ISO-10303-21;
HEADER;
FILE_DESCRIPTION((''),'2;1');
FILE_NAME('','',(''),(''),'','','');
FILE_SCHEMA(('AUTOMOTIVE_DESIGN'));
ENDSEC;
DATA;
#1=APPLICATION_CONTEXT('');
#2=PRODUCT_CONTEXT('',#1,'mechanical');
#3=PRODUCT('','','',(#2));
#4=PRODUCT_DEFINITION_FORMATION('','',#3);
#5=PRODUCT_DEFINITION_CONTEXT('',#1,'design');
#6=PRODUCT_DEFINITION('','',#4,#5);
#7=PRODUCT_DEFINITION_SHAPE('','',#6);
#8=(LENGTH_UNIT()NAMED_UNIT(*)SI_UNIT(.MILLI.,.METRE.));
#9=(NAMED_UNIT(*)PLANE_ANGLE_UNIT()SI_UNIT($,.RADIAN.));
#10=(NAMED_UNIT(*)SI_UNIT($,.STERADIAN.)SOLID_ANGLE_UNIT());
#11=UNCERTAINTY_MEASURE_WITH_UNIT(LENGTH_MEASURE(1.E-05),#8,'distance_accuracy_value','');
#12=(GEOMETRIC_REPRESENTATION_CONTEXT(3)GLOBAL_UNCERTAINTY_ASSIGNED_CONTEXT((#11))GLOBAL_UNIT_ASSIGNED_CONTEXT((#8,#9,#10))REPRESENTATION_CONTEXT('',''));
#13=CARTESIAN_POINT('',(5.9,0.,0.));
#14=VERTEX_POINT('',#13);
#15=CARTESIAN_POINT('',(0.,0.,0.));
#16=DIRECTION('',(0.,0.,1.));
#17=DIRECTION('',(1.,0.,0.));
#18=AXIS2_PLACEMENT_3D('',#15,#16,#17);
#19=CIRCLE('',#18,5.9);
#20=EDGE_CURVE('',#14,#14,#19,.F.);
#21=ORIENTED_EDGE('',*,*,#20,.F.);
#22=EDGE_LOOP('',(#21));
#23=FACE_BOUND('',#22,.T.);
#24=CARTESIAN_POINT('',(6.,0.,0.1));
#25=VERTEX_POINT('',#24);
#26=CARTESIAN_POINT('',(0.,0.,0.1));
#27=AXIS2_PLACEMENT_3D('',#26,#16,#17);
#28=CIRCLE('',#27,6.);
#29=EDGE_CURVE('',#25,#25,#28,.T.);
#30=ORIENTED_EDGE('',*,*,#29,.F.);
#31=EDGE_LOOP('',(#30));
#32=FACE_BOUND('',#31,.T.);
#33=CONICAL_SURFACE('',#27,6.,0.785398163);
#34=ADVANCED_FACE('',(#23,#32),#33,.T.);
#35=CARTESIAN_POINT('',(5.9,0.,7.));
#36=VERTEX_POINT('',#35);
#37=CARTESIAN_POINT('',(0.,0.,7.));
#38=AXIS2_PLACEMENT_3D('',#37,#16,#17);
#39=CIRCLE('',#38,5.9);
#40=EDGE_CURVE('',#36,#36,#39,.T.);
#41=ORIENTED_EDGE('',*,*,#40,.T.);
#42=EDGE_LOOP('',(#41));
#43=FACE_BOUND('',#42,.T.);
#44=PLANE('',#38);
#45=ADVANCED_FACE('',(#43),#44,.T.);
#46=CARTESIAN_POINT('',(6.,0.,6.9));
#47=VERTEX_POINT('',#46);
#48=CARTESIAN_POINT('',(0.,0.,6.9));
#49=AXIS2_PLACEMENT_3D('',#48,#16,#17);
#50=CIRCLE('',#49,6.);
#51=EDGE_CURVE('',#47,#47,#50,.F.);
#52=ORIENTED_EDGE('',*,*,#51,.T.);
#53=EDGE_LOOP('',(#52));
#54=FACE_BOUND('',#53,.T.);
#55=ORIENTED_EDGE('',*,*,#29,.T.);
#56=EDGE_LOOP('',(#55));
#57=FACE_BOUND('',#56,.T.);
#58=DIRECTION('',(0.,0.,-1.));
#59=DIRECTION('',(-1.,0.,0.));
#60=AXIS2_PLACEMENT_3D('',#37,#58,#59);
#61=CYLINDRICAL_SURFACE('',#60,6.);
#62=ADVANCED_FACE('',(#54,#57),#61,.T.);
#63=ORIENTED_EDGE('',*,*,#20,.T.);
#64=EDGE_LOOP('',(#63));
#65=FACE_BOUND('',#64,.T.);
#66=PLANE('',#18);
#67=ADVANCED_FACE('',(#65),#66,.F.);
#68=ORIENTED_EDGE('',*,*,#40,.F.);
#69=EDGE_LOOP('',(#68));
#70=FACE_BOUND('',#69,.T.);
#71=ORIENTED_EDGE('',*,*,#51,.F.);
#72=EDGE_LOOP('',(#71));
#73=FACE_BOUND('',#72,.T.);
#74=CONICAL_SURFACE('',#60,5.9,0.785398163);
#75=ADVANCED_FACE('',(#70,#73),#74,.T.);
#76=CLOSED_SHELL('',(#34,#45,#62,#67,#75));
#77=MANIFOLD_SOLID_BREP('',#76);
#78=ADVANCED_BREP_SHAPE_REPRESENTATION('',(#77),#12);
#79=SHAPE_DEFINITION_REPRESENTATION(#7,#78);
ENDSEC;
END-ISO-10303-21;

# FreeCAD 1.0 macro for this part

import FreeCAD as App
import Part
import Sketcher

V = App.Vector


def edges_at(feature, points):
    """Names of the edges that pass closest to the given points."""
    edges = feature.Shape.Edges
    near = lambda p: min(range(len(edges)), key=lambda i: edges[i].distToShape(Part.Vertex(*p))[0])
    return sorted({f"Edge{near(p) + 1}" for p in points})

doc = App.newDocument("Part")
params = doc.addObject("Spreadsheet::Sheet", "Params")
for row, (alias, value) in enumerate([
    ("sketch1_diameter", "12 mm"),
    ("pad1_length", "7 mm"),
    ("chamfer_size", "0.1 mm"),
], start=1):
    params.set(f"A{row}", alias)
    params.set(f"B{row}", "=" + value)
    params.setAlias(f"B{row}", alias)

body = doc.addObject("PartDesign::Body", "Body")

sketch1 = body.newObject("Sketcher::SketchObject", "Sketch")
sketch1.AttachmentSupport = (doc.getObject("XY_Plane"), [""])
sketch1.MapMode = "FlatFace"
sketch1.addGeometry(Part.Circle(V(0, 0, 0), V(0, 0, 1), 6), False)
sketch1.addConstraint([
    Sketcher.Constraint("Coincident", 0, 3, -1, 1),
    Sketcher.Constraint("Diameter", 0, 12.0),
])
sketch1.setExpression("Constraints[1]", "Params.sketch1_diameter")
pad1 = body.newObject("PartDesign::Pad", "Pad")
pad1.Profile = sketch1
pad1.setExpression("Length", "Params.pad1_length")
doc.recompute()

chamfer = body.newObject("PartDesign::Chamfer", "Chamfer")
chamfer.Base = (pad1, edges_at(pad1, [(-6, 0, 0), (-6, 0, 7)]))
chamfer.setExpression("Size", "Params.chamfer_size")

doc.recompute()
